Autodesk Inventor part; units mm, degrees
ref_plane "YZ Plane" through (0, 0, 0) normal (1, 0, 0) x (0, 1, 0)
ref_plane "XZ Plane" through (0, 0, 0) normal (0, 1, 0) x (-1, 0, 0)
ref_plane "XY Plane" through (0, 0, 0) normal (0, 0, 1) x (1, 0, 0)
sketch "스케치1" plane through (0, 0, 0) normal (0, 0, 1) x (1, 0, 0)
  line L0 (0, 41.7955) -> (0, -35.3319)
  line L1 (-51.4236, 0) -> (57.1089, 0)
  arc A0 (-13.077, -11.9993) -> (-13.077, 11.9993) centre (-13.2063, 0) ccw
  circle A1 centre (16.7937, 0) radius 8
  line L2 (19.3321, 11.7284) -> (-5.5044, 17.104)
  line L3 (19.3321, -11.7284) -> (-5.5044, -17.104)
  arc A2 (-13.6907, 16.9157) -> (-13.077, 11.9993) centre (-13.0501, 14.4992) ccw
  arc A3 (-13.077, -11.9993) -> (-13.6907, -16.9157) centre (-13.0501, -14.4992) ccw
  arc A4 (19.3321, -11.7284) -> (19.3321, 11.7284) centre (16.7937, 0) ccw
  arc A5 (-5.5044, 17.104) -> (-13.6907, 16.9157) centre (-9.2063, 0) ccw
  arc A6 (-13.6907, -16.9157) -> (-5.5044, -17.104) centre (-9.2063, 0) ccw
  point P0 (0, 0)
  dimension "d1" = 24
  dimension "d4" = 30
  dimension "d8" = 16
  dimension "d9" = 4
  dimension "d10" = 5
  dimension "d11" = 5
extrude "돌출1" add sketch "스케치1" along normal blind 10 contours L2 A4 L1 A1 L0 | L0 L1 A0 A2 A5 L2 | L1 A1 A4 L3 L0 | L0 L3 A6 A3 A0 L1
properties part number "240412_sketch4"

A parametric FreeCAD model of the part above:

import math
import FreeCAD as App
import Part
import Sketcher
from FreeCAD import Vector

doc = App.newDocument("Part")
params = doc.addObject("Spreadsheet::Sheet", "Params")
for row, (alias, value) in enumerate([
    ("sketch1_diameter", "16 mm"),
    ("sketch1_radius", "12 mm"),
    ("sketch1_radius2", "2.5 mm"),
    ("sketch1_radius3", "17.5 mm"),
    ("pad1_length", "10 mm"),
], start=1):
    params.set(f"A{row}", alias)
    params.set(f"B{row}", "=" + value)
    params.setAlias(f"B{row}", alias)

body = doc.addObject("PartDesign::Body", "Body")

sketch1 = body.newObject("Sketcher::SketchObject", "Sketch")
sketch1.AttachmentSupport = (doc.getObject("XY_Plane"), [""])
sketch1.MapMode = "FlatFace"
sketch1.addGeometry([
    Part.LineSegment(Vector(19.3, 11.7, 0), Vector(-5.5, 17.1, 0)),
    Part.ArcOfCircle(Part.Circle(Vector(-9.2, 0, 0), Vector(0, 0, 1), 17.5), math.radians(78), math.radians(105)),
    Part.ArcOfCircle(Part.Circle(Vector(-13.1, 14.5, 0), Vector(0, 0, 1), 2.5), math.radians(105), math.radians(269)),
    Part.ArcOfCircle(Part.Circle(Vector(-13.2, 0, 0), Vector(0, 0, 1), 12), math.radians(-89), math.radians(89)),
    Part.ArcOfCircle(Part.Circle(Vector(-13.1, -14.5, 0), Vector(0, 0, 1), 2.5), math.radians(91), math.radians(255)),
    Part.ArcOfCircle(Part.Circle(Vector(-9.2, 0, 0), Vector(0, 0, 1), 17.5), math.radians(-105), math.radians(-78)),
    Part.LineSegment(Vector(-5.5, -17.1, 0), Vector(19.3, -11.7, 0)),
    Part.ArcOfCircle(Part.Circle(Vector(16.8, 0, 0), Vector(0, 0, 1), 12), math.radians(-78), math.radians(78)),
    Part.Circle(Vector(16.8, 0, 0), Vector(0, 0, 1), 8),
], False)
sketch1.addConstraint([
    Sketcher.Constraint("Tangent", 0, 2, 1, 1),
    Sketcher.Constraint("Tangent", 1, 2, 2, 1),
    Sketcher.Constraint("Tangent", 2, 2, 3, 2),
    Sketcher.Constraint("Tangent", 3, 1, 4, 1),
    Sketcher.Constraint("Tangent", 4, 2, 5, 1),
    Sketcher.Constraint("Tangent", 5, 2, 6, 1),
    Sketcher.Constraint("Tangent", 6, 2, 7, 1),
    Sketcher.Constraint("Tangent", 7, 2, 0, 1),
    Sketcher.Constraint("Coincident", 5, 3, 1, 3),
    Sketcher.Constraint("Coincident", 8, 3, 7, 3),
    Sketcher.Constraint("Equal", 2, 4),
    Sketcher.Constraint("Equal", 1, 5),
    Sketcher.Constraint("Equal", 3, 7),
    Sketcher.Constraint("Symmetric", 2, 3, 4, 3, -1),
    Sketcher.Constraint("PointOnObject", 7, 3, -1),
    Sketcher.Constraint("Diameter", 8, 16.0),
    Sketcher.Constraint("Radius", 3, 12.0),
    Sketcher.Constraint("Radius", 2, 2.5),
    Sketcher.Constraint("DistanceX", 3, 3, 1, 3, 4.0),
    Sketcher.Constraint("DistanceX", 3, 3, 7, 3, 30.0),
    Sketcher.Constraint("Radius", 1, 17.5),
    Sketcher.Constraint("DistanceX", 2, 3, -1, 1, 13.05),
])
sketch1.setExpression("Constraints[15]", "Params.sketch1_diameter")
sketch1.setExpression("Constraints[16]", "Params.sketch1_radius")
sketch1.setExpression("Constraints[17]", "Params.sketch1_radius2")
sketch1.setExpression("Constraints[20]", "Params.sketch1_radius3")
pad1 = body.newObject("PartDesign::Pad", "Pad")
pad1.Profile = sketch1
pad1.setExpression("Length", "Params.pad1_length")

doc.recompute()
